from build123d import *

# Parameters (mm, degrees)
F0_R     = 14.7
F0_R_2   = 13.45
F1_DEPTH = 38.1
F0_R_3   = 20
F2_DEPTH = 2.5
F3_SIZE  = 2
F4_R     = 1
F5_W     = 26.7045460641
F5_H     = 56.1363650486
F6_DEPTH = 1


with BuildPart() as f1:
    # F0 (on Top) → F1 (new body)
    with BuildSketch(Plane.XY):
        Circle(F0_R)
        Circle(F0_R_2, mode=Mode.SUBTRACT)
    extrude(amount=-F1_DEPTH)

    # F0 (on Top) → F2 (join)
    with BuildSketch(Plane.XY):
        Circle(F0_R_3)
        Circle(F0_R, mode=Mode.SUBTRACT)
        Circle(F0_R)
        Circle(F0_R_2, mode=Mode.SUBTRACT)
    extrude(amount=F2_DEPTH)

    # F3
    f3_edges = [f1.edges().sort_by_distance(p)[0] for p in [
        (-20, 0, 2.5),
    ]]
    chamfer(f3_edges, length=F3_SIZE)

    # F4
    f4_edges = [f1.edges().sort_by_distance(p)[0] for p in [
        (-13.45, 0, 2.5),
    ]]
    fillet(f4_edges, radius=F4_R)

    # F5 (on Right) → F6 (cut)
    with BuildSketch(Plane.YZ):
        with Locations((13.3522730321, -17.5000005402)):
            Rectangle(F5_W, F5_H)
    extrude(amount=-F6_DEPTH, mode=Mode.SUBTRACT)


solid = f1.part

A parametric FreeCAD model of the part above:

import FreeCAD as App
import Part
import Sketcher
Q = App.Units.Quantity


def edges_at(feature, points):
    """Names of the edges that pass closest to the given points."""
    edges = feature.Shape.Edges
    near = lambda p: min(range(len(edges)), key=lambda i: edges[i].distToShape(Part.Vertex(*p))[0])
    return sorted({f"Edge{near(p) + 1}" for p in points})

doc = App.newDocument("Part")
body = doc.addObject("PartDesign::Body", "Body")

# Sketch on XY plane
sketch1 = doc.addObject("Sketcher::SketchObject", "Sketch")
body.addObject(sketch1)
sketch1.AttachmentSupport = (doc.XY_Plane, [""])
sketch1.MapMode = "FlatFace"
sketch1.addGeometry(Part.Circle(App.Vector(0, 0, 0), App.Vector(0, 0, 1), 15), False)
sketch1.addGeometry(Part.Circle(App.Vector(0, 0, 0), App.Vector(0, 0, 1), 13), False)
sketch1.addConstraint(Sketcher.Constraint("Coincident", 0, 3, -1, 1))
sketch1.addConstraint(Sketcher.Constraint("Coincident", 1, 3, -1, 1))
sketch1.addConstraint(Sketcher.Constraint("Diameter", 0, Q("29.4 mm")))
sketch1.addConstraint(Sketcher.Constraint("Diameter", 1, Q("26.9 mm")))
pad1 = doc.addObject("PartDesign::Pad", "Pad")
body.addObject(pad1)
pad1.Profile = sketch1
pad1.Length = 38.1
pad1.Reversed = True

# Sketch on XY plane
sketch2 = doc.addObject("Sketcher::SketchObject", "Sketch001")
body.addObject(sketch2)
sketch2.AttachmentSupport = (doc.XY_Plane, [""])
sketch2.MapMode = "FlatFace"
sketch2.addGeometry(Part.Circle(App.Vector(0, 0, 0), App.Vector(0, 0, 1), 20), False)
sketch2.addGeometry(Part.Circle(App.Vector(0, 0, 0), App.Vector(0, 0, 1), 13), False)
sketch2.addConstraint(Sketcher.Constraint("Coincident", 0, 3, -1, 1))
sketch2.addConstraint(Sketcher.Constraint("Coincident", 1, 3, -1, 1))
sketch2.addConstraint(Sketcher.Constraint("Diameter", 0, Q("40 mm")))
sketch2.addConstraint(Sketcher.Constraint("Diameter", 1, Q("26.9 mm")))
pad2 = doc.addObject("PartDesign::Pad", "Pad001")
body.addObject(pad2)
pad2.Profile = sketch2
pad2.Length = 2.5
doc.recompute()

chamfer = doc.addObject("PartDesign::Chamfer", "Chamfer")
body.addObject(chamfer)
chamfer.Base = (pad2, edges_at(pad2, [(-20, 0, 2.5)]))
chamfer.Size = 2
doc.recompute()

fillet = doc.addObject("PartDesign::Fillet", "Fillet")
body.addObject(fillet)
fillet.Base = (chamfer, edges_at(chamfer, [(-13.45, 0, 2.5)]))
fillet.Radius = 1

# Sketch on YZ plane
sketch3 = doc.addObject("Sketcher::SketchObject", "Sketch002")
body.addObject(sketch3)
sketch3.AttachmentSupport = (doc.YZ_Plane, [""])
sketch3.MapMode = "FlatFace"
sketch3.addGeometry(Part.LineSegment(App.Vector(0, 11, 0), App.Vector(0, -46, 0)), False)
sketch3.addGeometry(Part.LineSegment(App.Vector(0, -46, 0), App.Vector(27, -46, 0)), False)
sketch3.addGeometry(Part.LineSegment(App.Vector(27, -46, 0), App.Vector(27, 11, 0)), False)
sketch3.addGeometry(Part.LineSegment(App.Vector(27, 11, 0), App.Vector(0, 11, 0)), False)
sketch3.addConstraint(Sketcher.Constraint("Coincident", 0, 2, 1, 1))
sketch3.addConstraint(Sketcher.Constraint("Coincident", 1, 2, 2, 1))
sketch3.addConstraint(Sketcher.Constraint("Coincident", 2, 2, 3, 1))
sketch3.addConstraint(Sketcher.Constraint("Coincident", 3, 2, 0, 1))
sketch3.addConstraint(Sketcher.Constraint("Vertical", 0))
sketch3.addConstraint(Sketcher.Constraint("Horizontal", 1))
sketch3.addConstraint(Sketcher.Constraint("Vertical", 2))
sketch3.addConstraint(Sketcher.Constraint("Horizontal", 3))
sketch3.addConstraint(Sketcher.Constraint("PointOnObject", 0, 2, -2))
sketch3.addConstraint(Sketcher.Constraint("DistanceX", 1, 1, 1, 2, Q("26.704546 mm")))
sketch3.addConstraint(Sketcher.Constraint("DistanceY", 0, 2, 0, 1, Q("56.136365 mm")))
sketch3.addConstraint(Sketcher.Constraint("DistanceY", -1, 1, 2, 2, Q("10.568182 mm")))
pocket1 = doc.addObject("PartDesign::Pocket", "Pocket")
body.addObject(pocket1)
pocket1.Profile = sketch3
pocket1.Length = 1

doc.recompute()
